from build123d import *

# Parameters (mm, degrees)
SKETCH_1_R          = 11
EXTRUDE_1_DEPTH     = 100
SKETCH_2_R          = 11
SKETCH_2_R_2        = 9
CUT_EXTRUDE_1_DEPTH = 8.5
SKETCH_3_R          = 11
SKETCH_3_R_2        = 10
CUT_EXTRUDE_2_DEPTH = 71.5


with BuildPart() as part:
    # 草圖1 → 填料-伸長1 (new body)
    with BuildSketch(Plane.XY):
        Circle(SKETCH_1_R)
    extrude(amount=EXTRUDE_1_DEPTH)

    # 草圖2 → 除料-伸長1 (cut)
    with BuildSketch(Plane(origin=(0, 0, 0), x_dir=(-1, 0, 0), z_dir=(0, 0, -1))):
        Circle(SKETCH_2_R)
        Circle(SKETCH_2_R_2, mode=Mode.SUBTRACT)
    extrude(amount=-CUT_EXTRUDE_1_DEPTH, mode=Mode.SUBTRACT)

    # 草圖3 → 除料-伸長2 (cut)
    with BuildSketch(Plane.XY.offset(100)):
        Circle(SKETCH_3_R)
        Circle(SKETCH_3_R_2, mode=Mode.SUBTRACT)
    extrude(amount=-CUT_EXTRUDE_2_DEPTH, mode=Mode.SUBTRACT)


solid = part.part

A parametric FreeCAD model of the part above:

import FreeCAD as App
import Part
import Sketcher

doc = App.newDocument("Part")
body = doc.addObject("PartDesign::Body", "Body")

# Sketch on XY plane
sketch1 = body.newObject("Sketcher::SketchObject", "Sketch")
sketch1.AttachmentSupport = (doc.getObject("XY_Plane"), [""])
sketch1.MapMode = "FlatFace"
sketch1.addGeometry(Part.Circle(App.Vector(0, 0, 0), App.Vector(0, 0, 1), 11), False)
sketch1.addConstraint(Sketcher.Constraint("Coincident", 0, 3, -1, 1))
sketch1.addConstraint(Sketcher.Constraint("Diameter", 0, 22.0))
pad1 = body.newObject("PartDesign::Pad", "Pad")
pad1.Profile = sketch1
pad1.Length = 100

# Sketch on XY plane
sketch2 = body.newObject("Sketcher::SketchObject", "Sketch001")
sketch2.AttachmentSupport = (doc.getObject("XY_Plane"), [""])
sketch2.MapMode = "FlatFace"
sketch2.addGeometry(Part.Circle(App.Vector(0, 0, 0), App.Vector(0, 0, 1), 11), False)
sketch2.addGeometry(Part.Circle(App.Vector(0, 0, 0), App.Vector(0, 0, 1), 9), False)
sketch2.addConstraint(Sketcher.Constraint("Coincident", 0, 3, -1, 1))
sketch2.addConstraint(Sketcher.Constraint("Coincident", 1, 3, -1, 1))
sketch2.addConstraint(Sketcher.Constraint("Diameter", 0, 22.0))
sketch2.addConstraint(Sketcher.Constraint("Diameter", 1, 18.0))
pocket1 = body.newObject("PartDesign::Pocket", "Pocket")
pocket1.Profile = sketch2
pocket1.Length = 8.5
pocket1.Reversed = True

# Sketch on XY plane
sketch3 = body.newObject("Sketcher::SketchObject", "Sketch002")
sketch3.AttachmentSupport = (doc.getObject("XY_Plane"), [""])
sketch3.MapMode = "FlatFace"
sketch3.AttachmentOffset = App.Placement(App.Vector(0, 0, 100), App.Rotation())
sketch3.addGeometry(Part.Circle(App.Vector(0, 0, 0), App.Vector(0, 0, 1), 11), False)
sketch3.addGeometry(Part.Circle(App.Vector(0, 0, 0), App.Vector(0, 0, 1), 10), False)
sketch3.addConstraint(Sketcher.Constraint("Coincident", 0, 3, -1, 1))
sketch3.addConstraint(Sketcher.Constraint("Coincident", 1, 3, -1, 1))
sketch3.addConstraint(Sketcher.Constraint("Diameter", 0, 22.0))
sketch3.addConstraint(Sketcher.Constraint("Diameter", 1, 20.0))
pocket2 = body.newObject("PartDesign::Pocket", "Pocket001")
pocket2.Profile = sketch3
pocket2.Length = 71.5

doc.recompute()
